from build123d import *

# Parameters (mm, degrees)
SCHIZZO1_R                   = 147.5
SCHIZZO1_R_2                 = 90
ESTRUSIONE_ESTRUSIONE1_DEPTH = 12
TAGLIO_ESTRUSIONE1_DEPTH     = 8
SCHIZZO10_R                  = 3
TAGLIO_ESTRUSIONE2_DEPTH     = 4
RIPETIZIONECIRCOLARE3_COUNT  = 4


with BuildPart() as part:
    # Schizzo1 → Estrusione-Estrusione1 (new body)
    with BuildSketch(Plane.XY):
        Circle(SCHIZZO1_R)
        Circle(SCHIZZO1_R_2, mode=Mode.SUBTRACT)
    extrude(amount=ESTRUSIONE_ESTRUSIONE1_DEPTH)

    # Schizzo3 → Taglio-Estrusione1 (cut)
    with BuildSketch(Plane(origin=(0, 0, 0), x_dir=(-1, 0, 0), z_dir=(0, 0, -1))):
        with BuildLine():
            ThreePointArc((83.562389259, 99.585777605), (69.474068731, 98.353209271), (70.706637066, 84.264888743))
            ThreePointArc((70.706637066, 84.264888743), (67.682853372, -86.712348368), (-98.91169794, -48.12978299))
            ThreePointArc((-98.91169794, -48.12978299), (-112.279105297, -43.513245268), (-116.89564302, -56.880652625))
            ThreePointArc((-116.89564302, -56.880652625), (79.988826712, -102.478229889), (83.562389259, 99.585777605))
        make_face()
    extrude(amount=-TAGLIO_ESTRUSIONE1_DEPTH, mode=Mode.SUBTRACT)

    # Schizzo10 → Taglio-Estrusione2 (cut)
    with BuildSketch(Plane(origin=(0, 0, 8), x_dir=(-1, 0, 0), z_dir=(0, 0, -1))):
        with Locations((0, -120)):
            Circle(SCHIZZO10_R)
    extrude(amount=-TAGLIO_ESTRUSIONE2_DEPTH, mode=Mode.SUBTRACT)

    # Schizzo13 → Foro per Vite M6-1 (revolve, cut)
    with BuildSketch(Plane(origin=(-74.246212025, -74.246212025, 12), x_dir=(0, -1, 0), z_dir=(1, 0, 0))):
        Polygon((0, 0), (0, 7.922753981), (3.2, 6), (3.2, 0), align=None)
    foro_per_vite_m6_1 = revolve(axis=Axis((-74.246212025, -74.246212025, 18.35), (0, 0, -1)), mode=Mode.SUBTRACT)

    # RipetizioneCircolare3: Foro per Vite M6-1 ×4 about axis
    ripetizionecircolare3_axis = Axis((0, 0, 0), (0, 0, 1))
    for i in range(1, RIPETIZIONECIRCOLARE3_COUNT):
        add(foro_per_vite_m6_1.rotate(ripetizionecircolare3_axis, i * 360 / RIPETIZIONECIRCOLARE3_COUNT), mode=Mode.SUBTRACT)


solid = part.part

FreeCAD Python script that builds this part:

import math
import FreeCAD as App
import Part
import Sketcher
Q = App.Units.Quantity

doc = App.newDocument("Part")
body = doc.addObject("PartDesign::Body", "Body")

sketch1 = body.newObject("Sketcher::SketchObject", "Sketch")
sketch1.AttachmentSupport = (doc.getObject("XY_Plane"), [""])
sketch1.MapMode = "FlatFace"
sketch1.addGeometry(Part.Circle(App.Vector(0, 0, 0), App.Vector(0, 0, 1), 147.5), False)
sketch1.addGeometry(Part.Circle(App.Vector(0, 0, 0), App.Vector(0, 0, 1), 90), False)
sketch1.addConstraint(Sketcher.Constraint("Coincident", 0, 3, -1, 1))
sketch1.addConstraint(Sketcher.Constraint("Coincident", 1, 3, -1, 1))
sketch1.addConstraint(Sketcher.Constraint("Diameter", 0, Q("295 mm")))
sketch1.addConstraint(Sketcher.Constraint("Diameter", 1, Q("180 mm")))
pad1 = body.newObject("PartDesign::Pad", "Pad")
pad1.Profile = sketch1
pad1.Length = 12

sketch2 = body.newObject("Sketcher::SketchObject", "Sketch001")
sketch2.AttachmentSupport = (doc.getObject("XY_Plane"), [""])
sketch2.MapMode = "FlatFace"
sketch2.addGeometry(Part.ArcOfCircle(Part.Circle(App.Vector(-77.134513, 91.925333, 0), App.Vector(0, 0, 1), 10), math.radians(-50), math.radians(130)), False)
sketch2.addGeometry(Part.ArcOfCircle(Part.Circle(App.Vector(0, 0, 0), App.Vector(0, 0, 1), 110), math.radians(130), math.radians(334.05275)), False)
sketch2.addGeometry(Part.ArcOfCircle(Part.Circle(App.Vector(107.90367, -52.505218, 0), App.Vector(0, 0, 1), 10), math.radians(-25.94725), math.radians(154.05275)), False)
sketch2.addGeometry(Part.ArcOfCircle(Part.Circle(App.Vector(0, 0, 0), App.Vector(0, 0, 1), 130), math.radians(130), math.radians(334.05275)), False)
sketch2.addConstraint(Sketcher.Constraint("Tangent", 0, 1, 1, 1))
sketch2.addConstraint(Sketcher.Constraint("Tangent", 1, 2, 2, 2))
sketch2.addConstraint(Sketcher.Constraint("Tangent", 2, 1, 3, 2))
sketch2.addConstraint(Sketcher.Constraint("Tangent", 3, 1, 0, 2))
sketch2.addConstraint(Sketcher.Constraint("Coincident", 1, 3, -1, 1))
sketch2.addConstraint(Sketcher.Constraint("Coincident", 3, 3, -1, 1))
sketch2.addConstraint(Sketcher.Constraint("Radius", 0, Q("10 mm")))
sketch2.addConstraint(Sketcher.Constraint("Radius", 1, Q("110 mm")))
sketch2.addConstraint(Sketcher.Constraint("DistanceX", -1, 1, 2, 3, Q("107.90367 mm")))
sketch2.addConstraint(Sketcher.Constraint("DistanceY", -1, 1, 0, 1, Q("84.264889 mm")))
pocket1 = body.newObject("PartDesign::Pocket", "Pocket")
pocket1.Profile = sketch2
pocket1.Length = 8
pocket1.Reversed = True

sketch3 = body.newObject("Sketcher::SketchObject", "Sketch002")
sketch3.AttachmentSupport = (doc.getObject("XY_Plane"), [""])
sketch3.MapMode = "FlatFace"
sketch3.AttachmentOffset = App.Placement(App.Vector(0, 0, 8), App.Rotation())
sketch3.addGeometry(Part.Circle(App.Vector(0, -120, 0), App.Vector(0, 0, 1), 3), False)
sketch3.addConstraint(Sketcher.Constraint("PointOnObject", 0, 3, -2))
sketch3.addConstraint(Sketcher.Constraint("Diameter", 0, Q("6 mm")))
sketch3.addConstraint(Sketcher.Constraint("DistanceY", 0, 3, -1, 1, Q("120 mm")))
pocket2 = body.newObject("PartDesign::Pocket", "Pocket001")
pocket2.Profile = sketch3
pocket2.Length = 4
pocket2.Reversed = True

sketch4 = body.newObject("Sketcher::SketchObject", "Sketch003")
sketch4.AttachmentSupport = (doc.getObject("YZ_Plane"), [""])
sketch4.MapMode = "FlatFace"
sketch4.AttachmentOffset = App.Placement(App.Vector(0, 0, -74.246212), App.Rotation())
sketch4.addGeometry(Part.LineSegment(App.Vector(-74.246212, 4.077246, 0), App.Vector(-74.246212, 12, 0)), False)
sketch4.addGeometry(Part.LineSegment(App.Vector(-74.246212, 12, 0), App.Vector(-77.446212, 12, 0)), False)
sketch4.addGeometry(Part.LineSegment(App.Vector(-77.446212, 12, 0), App.Vector(-77.446212, 6, 0)), False)
sketch4.addGeometry(Part.LineSegment(App.Vector(-77.446212, 6, 0), App.Vector(-74.246212, 4.077246, 0)), False)
sketch4.addGeometry(Part.LineSegment(App.Vector(-74.246212, 12, 0), App.Vector(-74.246212, 4.077246, 0)), True)
sketch4.addConstraint(Sketcher.Constraint("Coincident", 0, 2, 1, 1))
sketch4.addConstraint(Sketcher.Constraint("Coincident", 1, 2, 2, 1))
sketch4.addConstraint(Sketcher.Constraint("Coincident", 2, 2, 3, 1))
sketch4.addConstraint(Sketcher.Constraint("Coincident", 3, 2, 0, 1))
sketch4.addConstraint(Sketcher.Constraint("Vertical", 0))
sketch4.addConstraint(Sketcher.Constraint("Horizontal", 1))
sketch4.addConstraint(Sketcher.Constraint("Vertical", 2))
sketch4.addConstraint(Sketcher.Constraint("Vertical", 4))
sketch4.addConstraint(Sketcher.Constraint("Coincident", 4, 1, 0, 2))
sketch4.addConstraint(Sketcher.Constraint("Equal", 0, 4))
sketch4.addConstraint(Sketcher.Constraint("DistanceY", 2, 2, 2, 1, Q("6 mm")))
sketch4.addConstraint(Sketcher.Constraint("Angle", 3, Q("-31 deg")))
sketch4.addConstraint(Sketcher.Constraint("DistanceX", 1, 2, 1, 1, Q("3.2 mm")))
sketch4.addConstraint(Sketcher.Constraint("DistanceY", -1, 1, 0, 2, Q("12 mm")))
sketch4.addConstraint(Sketcher.Constraint("DistanceX", 0, 2, -1, 1, Q("74.246212 mm")))
groove = body.newObject("PartDesign::Groove", "Groove")
groove.Profile = sketch4
groove.ReferenceAxis = (sketch4, ["Axis0"])
groove.Angle = 360
doc.recompute()

polarpattern = body.newObject("PartDesign::PolarPattern", "PolarPattern")
polarpattern.Originals = [groove]
polarpattern.Axis = (doc.getObject("Z_Axis"), [""])
polarpattern.Angle = 360
polarpattern.Occurrences = 4
body.Tip = polarpattern

doc.recompute()
